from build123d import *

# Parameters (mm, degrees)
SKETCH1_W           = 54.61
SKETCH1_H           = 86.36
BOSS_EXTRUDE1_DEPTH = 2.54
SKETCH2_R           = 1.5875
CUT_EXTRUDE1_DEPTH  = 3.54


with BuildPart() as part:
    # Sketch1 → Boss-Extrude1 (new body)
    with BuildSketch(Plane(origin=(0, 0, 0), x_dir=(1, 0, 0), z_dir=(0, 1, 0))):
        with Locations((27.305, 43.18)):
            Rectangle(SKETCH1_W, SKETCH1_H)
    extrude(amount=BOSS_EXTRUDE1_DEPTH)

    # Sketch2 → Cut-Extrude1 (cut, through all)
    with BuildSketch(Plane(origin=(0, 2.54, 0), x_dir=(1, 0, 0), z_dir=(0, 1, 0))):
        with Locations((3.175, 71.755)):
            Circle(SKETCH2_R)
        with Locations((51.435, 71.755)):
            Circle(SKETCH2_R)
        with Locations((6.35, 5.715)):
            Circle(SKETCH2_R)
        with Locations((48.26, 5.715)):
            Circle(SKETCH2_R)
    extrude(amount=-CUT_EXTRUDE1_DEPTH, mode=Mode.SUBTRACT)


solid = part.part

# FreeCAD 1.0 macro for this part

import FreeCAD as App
import Part
import Sketcher

V = App.Vector
Q = App.Units.Quantity

doc = App.newDocument("Part")
body = doc.addObject("PartDesign::Body", "Body")

sketch1 = doc.addObject("Sketcher::SketchObject", "Sketch")
body.addObject(sketch1)
sketch1.AttachmentSupport = (doc.XZ_Plane, [""])
sketch1.MapMode = "FlatFace"
sketch1.addGeometry([
    Part.LineSegment(V(0, -86, 0), V(0, 0, 0)),
    Part.LineSegment(V(0, 0, 0), V(55, 0, 0)),
    Part.LineSegment(V(55, 0, 0), V(55, -86, 0)),
    Part.LineSegment(V(55, -86, 0), V(0, -86, 0)),
], False)
sketch1.addConstraint([
    Sketcher.Constraint("Coincident", 0, 2, 1, 1),
    Sketcher.Constraint("Coincident", 1, 2, 2, 1),
    Sketcher.Constraint("Coincident", 2, 2, 3, 1),
    Sketcher.Constraint("Coincident", 3, 2, 0, 1),
    Sketcher.Constraint("Vertical", 0),
    Sketcher.Constraint("Horizontal", 1),
    Sketcher.Constraint("Vertical", 2),
    Sketcher.Constraint("Horizontal", 3),
    Sketcher.Constraint("Coincident", 0, 2, -1, 1),
    Sketcher.Constraint("DistanceY", 0, 1, 0, 2, Q("3.4 in")),
    Sketcher.Constraint("DistanceX", 1, 1, 1, 2, Q("2.15 in")),
])
pad1 = doc.addObject("PartDesign::Pad", "Pad")
body.addObject(pad1)
pad1.Profile = sketch1
pad1.Length = Q("0.1 in")
pad1.Reversed = True

sketch2 = doc.addObject("Sketcher::SketchObject", "Sketch001")
body.addObject(sketch2)
sketch2.AttachmentSupport = (doc.XZ_Plane, [""])
sketch2.MapMode = "FlatFace"
sketch2.AttachmentOffset = App.Placement(V(0, 0, -0.1 * 25.4), App.Rotation())
sketch2.addGeometry([
    Part.Circle(V(3.2, -71.8, 0), V(0, 0, 1), 1.6),
    Part.Circle(V(51.4, -71.8, 0), V(0, 0, 1), 1.6),
    Part.Circle(V(6.3, -5.7, 0), V(0, 0, 1), 1.6),
    Part.Circle(V(48.3, -5.7, 0), V(0, 0, 1), 1.6),
], False)
sketch2.addConstraint([
    Sketcher.Constraint("Equal", 0, 1),
    Sketcher.Constraint("Equal", 1, 2),
    Sketcher.Constraint("Equal", 2, 3),
    Sketcher.Constraint("Horizontal", 0, 3, 1, 3),
    Sketcher.Constraint("Horizontal", 2, 3, 3, 3),
    Sketcher.Constraint("Diameter", 0, Q("0.125 in")),
    Sketcher.Constraint("DistanceX", -1, 1, 3, 3, Q("1.9 in")),
    Sketcher.Constraint("DistanceX", 0, 3, 1, 3, Q("1.9 in")),
    Sketcher.Constraint("DistanceY", 0, 3, 2, 3, Q("2.6 in")),
    Sketcher.Constraint("DistanceX", -1, 1, 2, 3, Q("0.25 in")),
    Sketcher.Constraint("DistanceX", -1, 1, 0, 3, Q("0.125 in")),
    Sketcher.Constraint("DistanceY", 0, 3, -1, 1, Q("2.825 in")),
])
pocket1 = doc.addObject("PartDesign::Pocket", "Pocket")
body.addObject(pocket1)
pocket1.Profile = sketch2
pocket1.Type = "ThroughAll"
pocket1.Reversed = True

doc.recompute()
